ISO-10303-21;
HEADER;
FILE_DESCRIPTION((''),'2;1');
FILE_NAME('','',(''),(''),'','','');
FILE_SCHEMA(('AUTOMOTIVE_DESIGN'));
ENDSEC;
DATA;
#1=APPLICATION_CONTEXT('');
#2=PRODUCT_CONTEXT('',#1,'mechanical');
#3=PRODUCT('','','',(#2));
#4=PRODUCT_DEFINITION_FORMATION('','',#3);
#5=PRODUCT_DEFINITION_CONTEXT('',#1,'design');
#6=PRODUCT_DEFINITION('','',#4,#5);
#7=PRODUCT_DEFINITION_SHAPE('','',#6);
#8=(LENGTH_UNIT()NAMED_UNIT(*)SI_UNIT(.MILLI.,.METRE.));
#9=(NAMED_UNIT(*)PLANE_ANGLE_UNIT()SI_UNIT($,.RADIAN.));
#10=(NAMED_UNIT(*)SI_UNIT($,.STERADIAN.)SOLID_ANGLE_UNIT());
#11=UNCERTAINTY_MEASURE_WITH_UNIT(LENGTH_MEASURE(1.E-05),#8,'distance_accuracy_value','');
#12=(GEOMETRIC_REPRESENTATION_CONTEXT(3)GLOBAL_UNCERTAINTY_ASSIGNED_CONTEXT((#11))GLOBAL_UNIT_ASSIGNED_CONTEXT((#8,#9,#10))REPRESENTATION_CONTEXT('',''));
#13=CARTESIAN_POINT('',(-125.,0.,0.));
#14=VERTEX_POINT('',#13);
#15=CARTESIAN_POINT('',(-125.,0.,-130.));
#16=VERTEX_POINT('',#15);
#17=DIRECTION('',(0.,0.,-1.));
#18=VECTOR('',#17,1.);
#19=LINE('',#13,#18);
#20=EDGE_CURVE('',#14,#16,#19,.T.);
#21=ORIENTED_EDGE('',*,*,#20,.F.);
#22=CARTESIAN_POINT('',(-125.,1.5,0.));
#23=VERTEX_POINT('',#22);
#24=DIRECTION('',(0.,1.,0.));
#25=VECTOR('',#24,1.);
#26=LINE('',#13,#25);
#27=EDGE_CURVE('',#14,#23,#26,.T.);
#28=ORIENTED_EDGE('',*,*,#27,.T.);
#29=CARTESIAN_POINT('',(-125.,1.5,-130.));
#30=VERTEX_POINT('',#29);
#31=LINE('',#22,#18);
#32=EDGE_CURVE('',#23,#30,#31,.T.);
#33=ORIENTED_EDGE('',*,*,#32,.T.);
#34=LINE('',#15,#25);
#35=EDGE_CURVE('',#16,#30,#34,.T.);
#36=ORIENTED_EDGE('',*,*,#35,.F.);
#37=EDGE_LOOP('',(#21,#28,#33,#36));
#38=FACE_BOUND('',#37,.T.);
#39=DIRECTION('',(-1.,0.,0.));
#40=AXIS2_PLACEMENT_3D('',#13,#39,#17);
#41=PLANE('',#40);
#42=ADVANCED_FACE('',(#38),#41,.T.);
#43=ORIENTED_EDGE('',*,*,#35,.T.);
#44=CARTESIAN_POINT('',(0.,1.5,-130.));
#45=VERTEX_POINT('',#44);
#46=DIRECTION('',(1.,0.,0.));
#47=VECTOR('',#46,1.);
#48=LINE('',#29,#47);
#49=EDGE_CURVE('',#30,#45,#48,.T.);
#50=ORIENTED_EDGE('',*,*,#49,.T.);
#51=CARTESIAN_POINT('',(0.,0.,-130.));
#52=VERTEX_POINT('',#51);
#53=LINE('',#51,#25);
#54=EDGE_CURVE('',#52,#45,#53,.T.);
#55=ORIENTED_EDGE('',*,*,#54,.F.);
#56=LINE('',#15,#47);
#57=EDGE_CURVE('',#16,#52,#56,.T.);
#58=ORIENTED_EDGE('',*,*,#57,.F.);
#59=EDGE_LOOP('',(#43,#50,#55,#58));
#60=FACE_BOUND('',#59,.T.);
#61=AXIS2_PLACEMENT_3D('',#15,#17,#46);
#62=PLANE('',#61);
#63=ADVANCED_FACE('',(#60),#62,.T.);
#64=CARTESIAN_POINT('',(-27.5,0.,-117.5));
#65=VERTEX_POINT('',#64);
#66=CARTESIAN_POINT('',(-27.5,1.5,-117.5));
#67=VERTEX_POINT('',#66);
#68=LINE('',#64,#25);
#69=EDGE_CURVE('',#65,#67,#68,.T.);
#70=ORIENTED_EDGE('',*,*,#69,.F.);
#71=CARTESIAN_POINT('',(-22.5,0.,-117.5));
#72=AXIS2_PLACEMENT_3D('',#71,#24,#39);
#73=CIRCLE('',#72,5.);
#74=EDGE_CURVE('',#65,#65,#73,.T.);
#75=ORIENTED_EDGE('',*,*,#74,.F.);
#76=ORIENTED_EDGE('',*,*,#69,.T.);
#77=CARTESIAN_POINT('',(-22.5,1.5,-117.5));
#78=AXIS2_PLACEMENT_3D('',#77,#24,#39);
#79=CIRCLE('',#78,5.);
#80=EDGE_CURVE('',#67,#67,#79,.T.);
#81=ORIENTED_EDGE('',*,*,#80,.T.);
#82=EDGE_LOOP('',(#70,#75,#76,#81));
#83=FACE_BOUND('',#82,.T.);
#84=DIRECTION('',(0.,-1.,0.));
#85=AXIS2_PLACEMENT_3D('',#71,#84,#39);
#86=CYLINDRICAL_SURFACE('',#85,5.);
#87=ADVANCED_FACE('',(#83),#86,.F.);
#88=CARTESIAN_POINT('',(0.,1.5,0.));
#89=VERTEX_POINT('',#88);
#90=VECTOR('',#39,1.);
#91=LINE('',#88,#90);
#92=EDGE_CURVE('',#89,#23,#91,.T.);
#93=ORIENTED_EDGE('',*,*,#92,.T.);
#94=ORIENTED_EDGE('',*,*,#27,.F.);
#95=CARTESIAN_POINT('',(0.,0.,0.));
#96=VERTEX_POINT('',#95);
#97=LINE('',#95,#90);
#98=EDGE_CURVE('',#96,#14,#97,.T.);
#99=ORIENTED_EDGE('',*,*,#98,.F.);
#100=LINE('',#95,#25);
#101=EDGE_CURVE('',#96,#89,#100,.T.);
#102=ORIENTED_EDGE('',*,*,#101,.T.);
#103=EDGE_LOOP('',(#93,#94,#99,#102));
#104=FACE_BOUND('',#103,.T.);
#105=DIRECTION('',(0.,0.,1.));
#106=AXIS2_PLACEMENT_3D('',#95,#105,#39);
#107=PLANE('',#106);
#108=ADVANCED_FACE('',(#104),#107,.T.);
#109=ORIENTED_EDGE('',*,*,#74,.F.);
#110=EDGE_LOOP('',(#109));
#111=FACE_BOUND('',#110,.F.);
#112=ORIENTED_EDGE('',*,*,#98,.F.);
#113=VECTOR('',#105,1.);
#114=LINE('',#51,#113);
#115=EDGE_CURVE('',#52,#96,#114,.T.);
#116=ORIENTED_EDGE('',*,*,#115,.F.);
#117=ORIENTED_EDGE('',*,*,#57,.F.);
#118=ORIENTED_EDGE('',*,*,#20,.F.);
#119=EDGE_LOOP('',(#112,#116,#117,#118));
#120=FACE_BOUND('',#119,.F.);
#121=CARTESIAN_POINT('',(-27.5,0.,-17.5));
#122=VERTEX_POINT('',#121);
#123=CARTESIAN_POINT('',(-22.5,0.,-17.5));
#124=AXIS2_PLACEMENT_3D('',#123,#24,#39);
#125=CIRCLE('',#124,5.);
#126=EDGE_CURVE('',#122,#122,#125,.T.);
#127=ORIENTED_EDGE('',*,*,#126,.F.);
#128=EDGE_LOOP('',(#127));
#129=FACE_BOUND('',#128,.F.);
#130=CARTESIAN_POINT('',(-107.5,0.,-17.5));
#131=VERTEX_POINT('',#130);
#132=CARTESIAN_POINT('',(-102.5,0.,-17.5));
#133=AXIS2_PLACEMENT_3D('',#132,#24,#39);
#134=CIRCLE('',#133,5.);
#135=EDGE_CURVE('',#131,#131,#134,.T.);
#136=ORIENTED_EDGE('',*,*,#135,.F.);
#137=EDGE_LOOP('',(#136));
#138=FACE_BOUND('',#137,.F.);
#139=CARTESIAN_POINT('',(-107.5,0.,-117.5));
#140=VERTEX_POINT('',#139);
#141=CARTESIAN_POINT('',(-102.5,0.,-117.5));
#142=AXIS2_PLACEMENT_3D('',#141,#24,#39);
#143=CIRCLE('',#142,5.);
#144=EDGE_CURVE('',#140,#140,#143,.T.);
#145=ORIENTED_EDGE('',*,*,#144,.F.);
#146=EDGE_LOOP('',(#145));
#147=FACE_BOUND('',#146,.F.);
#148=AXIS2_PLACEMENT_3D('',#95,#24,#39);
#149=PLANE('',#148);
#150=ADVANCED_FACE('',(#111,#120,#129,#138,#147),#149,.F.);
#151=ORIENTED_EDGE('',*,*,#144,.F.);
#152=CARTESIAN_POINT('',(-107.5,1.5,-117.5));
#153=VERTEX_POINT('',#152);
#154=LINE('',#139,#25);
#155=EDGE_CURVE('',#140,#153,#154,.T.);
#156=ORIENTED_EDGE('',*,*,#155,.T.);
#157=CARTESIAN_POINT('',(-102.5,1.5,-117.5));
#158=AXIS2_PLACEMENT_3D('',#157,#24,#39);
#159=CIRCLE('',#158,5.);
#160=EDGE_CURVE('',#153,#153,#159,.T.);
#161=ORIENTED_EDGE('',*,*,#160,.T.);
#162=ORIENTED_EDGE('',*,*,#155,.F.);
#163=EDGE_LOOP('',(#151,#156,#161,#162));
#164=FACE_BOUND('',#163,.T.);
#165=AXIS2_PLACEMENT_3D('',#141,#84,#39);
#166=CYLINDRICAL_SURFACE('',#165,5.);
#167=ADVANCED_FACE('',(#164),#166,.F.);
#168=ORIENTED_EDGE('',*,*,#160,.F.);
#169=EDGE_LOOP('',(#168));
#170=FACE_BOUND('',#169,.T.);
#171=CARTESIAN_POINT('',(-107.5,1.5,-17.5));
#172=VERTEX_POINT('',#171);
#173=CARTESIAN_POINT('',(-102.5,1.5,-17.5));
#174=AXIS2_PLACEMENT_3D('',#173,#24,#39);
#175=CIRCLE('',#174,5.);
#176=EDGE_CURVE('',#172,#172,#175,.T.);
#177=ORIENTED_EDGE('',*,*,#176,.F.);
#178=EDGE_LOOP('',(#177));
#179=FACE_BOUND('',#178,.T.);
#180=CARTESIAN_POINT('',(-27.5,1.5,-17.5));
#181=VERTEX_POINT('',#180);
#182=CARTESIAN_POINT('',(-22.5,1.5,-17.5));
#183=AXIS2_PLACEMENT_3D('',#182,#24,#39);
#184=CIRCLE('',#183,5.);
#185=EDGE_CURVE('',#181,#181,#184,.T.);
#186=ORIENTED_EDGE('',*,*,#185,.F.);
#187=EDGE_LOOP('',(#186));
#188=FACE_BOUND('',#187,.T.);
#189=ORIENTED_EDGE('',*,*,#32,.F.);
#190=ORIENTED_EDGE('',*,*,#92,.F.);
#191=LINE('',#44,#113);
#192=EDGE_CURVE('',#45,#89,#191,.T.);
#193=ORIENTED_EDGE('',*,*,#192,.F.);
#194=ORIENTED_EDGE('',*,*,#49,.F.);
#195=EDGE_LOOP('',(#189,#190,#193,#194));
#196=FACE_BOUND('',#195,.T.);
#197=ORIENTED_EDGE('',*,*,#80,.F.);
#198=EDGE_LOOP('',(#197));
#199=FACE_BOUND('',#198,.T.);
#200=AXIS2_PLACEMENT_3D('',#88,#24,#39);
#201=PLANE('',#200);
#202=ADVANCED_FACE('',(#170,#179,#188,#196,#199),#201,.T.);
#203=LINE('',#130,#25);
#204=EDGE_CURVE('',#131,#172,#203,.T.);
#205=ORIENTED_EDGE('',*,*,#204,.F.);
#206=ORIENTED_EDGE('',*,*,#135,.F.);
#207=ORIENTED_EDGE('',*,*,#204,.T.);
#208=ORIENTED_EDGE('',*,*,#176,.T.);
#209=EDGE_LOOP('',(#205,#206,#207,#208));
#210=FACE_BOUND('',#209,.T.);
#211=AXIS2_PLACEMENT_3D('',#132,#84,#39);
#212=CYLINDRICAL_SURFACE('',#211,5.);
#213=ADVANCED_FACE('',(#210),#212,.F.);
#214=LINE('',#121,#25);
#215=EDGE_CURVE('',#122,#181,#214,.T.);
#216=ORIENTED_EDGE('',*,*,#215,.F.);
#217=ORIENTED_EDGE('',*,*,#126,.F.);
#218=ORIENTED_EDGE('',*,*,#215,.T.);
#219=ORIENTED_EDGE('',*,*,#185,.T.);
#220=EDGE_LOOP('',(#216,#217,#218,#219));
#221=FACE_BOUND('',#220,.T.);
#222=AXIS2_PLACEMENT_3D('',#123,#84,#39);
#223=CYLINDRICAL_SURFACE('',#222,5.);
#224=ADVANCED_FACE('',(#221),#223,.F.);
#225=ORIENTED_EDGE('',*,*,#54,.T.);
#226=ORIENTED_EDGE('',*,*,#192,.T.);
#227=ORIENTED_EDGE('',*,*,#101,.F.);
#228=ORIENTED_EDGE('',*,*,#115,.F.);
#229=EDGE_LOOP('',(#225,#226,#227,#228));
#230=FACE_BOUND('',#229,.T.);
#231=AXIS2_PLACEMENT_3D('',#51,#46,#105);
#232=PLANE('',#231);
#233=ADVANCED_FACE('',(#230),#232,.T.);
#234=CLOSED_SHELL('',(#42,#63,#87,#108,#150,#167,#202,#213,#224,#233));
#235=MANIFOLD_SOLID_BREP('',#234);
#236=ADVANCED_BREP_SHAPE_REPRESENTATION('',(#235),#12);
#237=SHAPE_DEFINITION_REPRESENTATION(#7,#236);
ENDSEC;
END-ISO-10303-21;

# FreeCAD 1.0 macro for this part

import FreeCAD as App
import Part
import Sketcher
Q = App.Units.Quantity


def add_polygon(sketch, points):
    """Adds a closed chain of lines whose ends are joined by coincident constraints."""
    first, n = sketch.GeometryCount, len(points)
    for a, b in zip(points, points[1:] + points[:1]):
        sketch.addGeometry(Part.LineSegment(App.Vector(*a, 0), App.Vector(*b, 0)), False)
    for i in range(n):
        sketch.addConstraint(Sketcher.Constraint("Coincident", first + i, 2, first + (i + 1) % n, 1))

doc = App.newDocument("Part")
body = doc.addObject("PartDesign::Body", "Body")

sketch1 = body.newObject("Sketcher::SketchObject", "Sketch")
sketch1.AttachmentSupport = (doc.getObject("XZ_Plane"), [""])
sketch1.MapMode = "FlatFace"
add_polygon(sketch1, [(-125, 0), (0, 0), (0, -130), (-125, -130)])
sketch1.addGeometry(Part.Circle(App.Vector(-22, -118, 0), App.Vector(0, 0, 1), 5), False)
sketch1.addGeometry(Part.Circle(App.Vector(-102, -118, 0), App.Vector(0, 0, 1), 5), False)
sketch1.addGeometry(Part.Circle(App.Vector(-22, -18, 0), App.Vector(0, 0, 1), 5), False)
sketch1.addGeometry(Part.Circle(App.Vector(-102, -18, 0), App.Vector(0, 0, 1), 5), False)
sketch1.addConstraint(Sketcher.Constraint("Horizontal", 0))
sketch1.addConstraint(Sketcher.Constraint("Vertical", 1))
sketch1.addConstraint(Sketcher.Constraint("Horizontal", 2))
sketch1.addConstraint(Sketcher.Constraint("Vertical", 3))
sketch1.addConstraint(Sketcher.Constraint("Coincident", 0, 2, -1, 1))
sketch1.addConstraint(Sketcher.Constraint("Equal", 4, 5))
sketch1.addConstraint(Sketcher.Constraint("Equal", 5, 6))
sketch1.addConstraint(Sketcher.Constraint("Equal", 6, 7))
sketch1.addConstraint(Sketcher.Constraint("Horizontal", 4, 3, 5, 3))
sketch1.addConstraint(Sketcher.Constraint("Horizontal", 6, 3, 7, 3))
sketch1.addConstraint(Sketcher.Constraint("Vertical", 4, 3, 6, 3))
sketch1.addConstraint(Sketcher.Constraint("Vertical", 5, 3, 7, 3))
sketch1.addConstraint(Sketcher.Constraint("Diameter", 4, Q("10 mm")))
sketch1.addConstraint(Sketcher.Constraint("DistanceX", 0, 1, 0, 2, Q("125 mm")))
sketch1.addConstraint(Sketcher.Constraint("DistanceY", 1, 2, 1, 1, Q("130 mm")))
sketch1.addConstraint(Sketcher.Constraint("DistanceX", 5, 3, 4, 3, Q("80 mm")))
sketch1.addConstraint(Sketcher.Constraint("DistanceY", 4, 3, 6, 3, Q("100 mm")))
sketch1.addConstraint(Sketcher.Constraint("DistanceX", 4, 3, -1, 1, Q("22.5 mm")))
sketch1.addConstraint(Sketcher.Constraint("DistanceY", 6, 3, -1, 1, Q("17.5 mm")))
pad1 = body.newObject("PartDesign::Pad", "Pad")
pad1.Profile = sketch1
pad1.Length = 1.5
pad1.Reversed = True

doc.recompute()
